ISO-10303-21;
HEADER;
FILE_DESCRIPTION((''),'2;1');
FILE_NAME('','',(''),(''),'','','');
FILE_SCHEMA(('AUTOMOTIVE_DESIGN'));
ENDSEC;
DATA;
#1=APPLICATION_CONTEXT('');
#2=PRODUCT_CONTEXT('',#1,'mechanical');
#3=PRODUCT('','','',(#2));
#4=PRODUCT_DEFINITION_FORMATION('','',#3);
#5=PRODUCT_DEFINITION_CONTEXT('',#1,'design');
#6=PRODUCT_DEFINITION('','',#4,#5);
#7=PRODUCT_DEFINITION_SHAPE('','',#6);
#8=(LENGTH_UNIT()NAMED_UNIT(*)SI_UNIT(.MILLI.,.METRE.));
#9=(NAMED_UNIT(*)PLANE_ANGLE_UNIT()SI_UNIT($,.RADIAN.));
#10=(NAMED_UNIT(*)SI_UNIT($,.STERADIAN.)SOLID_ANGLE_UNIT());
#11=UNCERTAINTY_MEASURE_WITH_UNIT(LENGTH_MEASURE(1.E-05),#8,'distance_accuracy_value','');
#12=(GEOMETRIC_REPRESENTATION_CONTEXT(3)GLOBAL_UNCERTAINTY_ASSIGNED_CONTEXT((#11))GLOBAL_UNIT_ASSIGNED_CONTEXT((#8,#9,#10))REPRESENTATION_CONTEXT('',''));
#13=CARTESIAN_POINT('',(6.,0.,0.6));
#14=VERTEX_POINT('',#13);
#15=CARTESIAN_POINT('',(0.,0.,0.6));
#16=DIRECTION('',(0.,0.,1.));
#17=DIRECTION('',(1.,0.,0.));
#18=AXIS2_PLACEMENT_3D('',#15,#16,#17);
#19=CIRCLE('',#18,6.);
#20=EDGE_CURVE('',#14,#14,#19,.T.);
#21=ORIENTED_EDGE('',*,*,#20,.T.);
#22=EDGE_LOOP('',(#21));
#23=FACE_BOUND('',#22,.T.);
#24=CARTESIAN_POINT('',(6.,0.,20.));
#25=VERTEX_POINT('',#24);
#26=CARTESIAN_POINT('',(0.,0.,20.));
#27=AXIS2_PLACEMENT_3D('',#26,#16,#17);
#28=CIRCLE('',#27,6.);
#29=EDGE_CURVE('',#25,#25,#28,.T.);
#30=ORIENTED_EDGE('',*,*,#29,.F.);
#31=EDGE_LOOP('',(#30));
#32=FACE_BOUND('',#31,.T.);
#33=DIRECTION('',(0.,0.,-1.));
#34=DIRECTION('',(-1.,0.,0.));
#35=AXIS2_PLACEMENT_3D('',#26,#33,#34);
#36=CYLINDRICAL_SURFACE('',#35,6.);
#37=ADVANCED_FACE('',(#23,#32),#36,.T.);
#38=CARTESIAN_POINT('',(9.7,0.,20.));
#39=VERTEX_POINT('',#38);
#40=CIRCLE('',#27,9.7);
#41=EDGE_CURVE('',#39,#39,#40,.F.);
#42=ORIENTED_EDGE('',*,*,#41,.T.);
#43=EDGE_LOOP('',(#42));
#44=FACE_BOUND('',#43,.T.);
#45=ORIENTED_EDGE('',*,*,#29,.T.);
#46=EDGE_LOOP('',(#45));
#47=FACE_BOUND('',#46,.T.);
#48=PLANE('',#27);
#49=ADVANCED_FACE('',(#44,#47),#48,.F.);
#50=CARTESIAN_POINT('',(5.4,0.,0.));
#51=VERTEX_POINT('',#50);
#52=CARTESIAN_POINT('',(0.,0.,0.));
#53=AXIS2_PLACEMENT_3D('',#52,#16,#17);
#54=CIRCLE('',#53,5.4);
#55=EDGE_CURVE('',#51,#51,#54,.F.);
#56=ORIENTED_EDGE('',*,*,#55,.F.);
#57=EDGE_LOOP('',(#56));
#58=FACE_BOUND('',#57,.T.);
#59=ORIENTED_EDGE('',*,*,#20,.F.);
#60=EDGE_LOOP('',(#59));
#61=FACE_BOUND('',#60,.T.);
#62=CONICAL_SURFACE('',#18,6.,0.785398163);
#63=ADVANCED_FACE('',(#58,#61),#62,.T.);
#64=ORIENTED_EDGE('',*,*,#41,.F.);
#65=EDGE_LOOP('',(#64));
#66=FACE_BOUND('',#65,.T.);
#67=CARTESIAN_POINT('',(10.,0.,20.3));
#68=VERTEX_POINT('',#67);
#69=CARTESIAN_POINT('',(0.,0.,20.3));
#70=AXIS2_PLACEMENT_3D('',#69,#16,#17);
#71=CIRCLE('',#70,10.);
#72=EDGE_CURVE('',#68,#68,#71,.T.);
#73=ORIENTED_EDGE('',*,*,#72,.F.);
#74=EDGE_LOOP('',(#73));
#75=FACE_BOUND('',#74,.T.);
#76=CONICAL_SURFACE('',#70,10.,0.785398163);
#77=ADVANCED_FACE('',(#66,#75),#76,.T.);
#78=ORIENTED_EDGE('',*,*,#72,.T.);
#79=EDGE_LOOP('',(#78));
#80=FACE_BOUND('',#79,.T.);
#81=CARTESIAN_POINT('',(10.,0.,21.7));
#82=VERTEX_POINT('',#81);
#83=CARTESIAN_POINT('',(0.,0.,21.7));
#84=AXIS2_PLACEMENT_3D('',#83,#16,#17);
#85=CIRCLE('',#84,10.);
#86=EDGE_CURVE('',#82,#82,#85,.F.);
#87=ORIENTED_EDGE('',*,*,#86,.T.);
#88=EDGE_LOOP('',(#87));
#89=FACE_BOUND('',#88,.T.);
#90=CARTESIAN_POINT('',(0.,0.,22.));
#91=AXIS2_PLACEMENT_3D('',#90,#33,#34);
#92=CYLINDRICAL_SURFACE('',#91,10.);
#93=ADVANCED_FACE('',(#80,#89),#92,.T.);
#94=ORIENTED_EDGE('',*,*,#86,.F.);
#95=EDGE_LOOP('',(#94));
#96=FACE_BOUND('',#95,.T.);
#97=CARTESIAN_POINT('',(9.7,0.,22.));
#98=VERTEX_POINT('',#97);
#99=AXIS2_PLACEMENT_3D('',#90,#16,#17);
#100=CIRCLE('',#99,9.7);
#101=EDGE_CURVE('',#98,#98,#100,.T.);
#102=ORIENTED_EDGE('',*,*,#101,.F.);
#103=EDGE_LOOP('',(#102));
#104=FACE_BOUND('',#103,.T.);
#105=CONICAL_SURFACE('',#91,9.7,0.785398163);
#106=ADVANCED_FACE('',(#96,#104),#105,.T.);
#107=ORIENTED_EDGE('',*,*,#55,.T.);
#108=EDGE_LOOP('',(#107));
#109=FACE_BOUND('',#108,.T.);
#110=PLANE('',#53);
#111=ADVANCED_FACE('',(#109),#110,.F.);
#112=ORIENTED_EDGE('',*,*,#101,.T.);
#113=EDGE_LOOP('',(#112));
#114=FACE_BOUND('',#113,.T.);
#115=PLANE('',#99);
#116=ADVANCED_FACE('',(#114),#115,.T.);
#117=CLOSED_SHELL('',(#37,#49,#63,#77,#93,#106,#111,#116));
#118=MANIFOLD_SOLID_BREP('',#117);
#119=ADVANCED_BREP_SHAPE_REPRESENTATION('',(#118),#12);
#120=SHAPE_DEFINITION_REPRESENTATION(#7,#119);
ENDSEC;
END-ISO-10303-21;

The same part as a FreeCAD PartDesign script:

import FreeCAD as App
import Part
import Sketcher


def edges_at(feature, points):
    """Names of the edges that pass closest to the given points."""
    edges = feature.Shape.Edges
    near = lambda p: min(range(len(edges)), key=lambda i: edges[i].distToShape(Part.Vertex(*p))[0])
    return sorted({f"Edge{near(p) + 1}" for p in points})

doc = App.newDocument("Part")
params = doc.addObject("Spreadsheet::Sheet", "Params")
for row, (alias, value) in enumerate([
    ("sketch1_diameter", "12 mm"),
    ("pad1_length", "20 mm"),
    ("sketch2_diameter", "20 mm"),
    ("pad2_length", "2 mm"),
    ("chamfer_size", "0.6 mm"),
    ("chamfer2_size", "0.3 mm"),
], start=1):
    params.set(f"A{row}", alias)
    params.set(f"B{row}", "=" + value)
    params.setAlias(f"B{row}", alias)

body = doc.addObject("PartDesign::Body", "Body")

# Sketch on XY plane
sketch1 = body.newObject("Sketcher::SketchObject", "Sketch")
sketch1.AttachmentSupport = (doc.getObject("XY_Plane"), [""])
sketch1.MapMode = "FlatFace"
sketch1.addGeometry(Part.Circle(App.Vector(0, 0, 0), App.Vector(0, 0, 1), 6), False)
sketch1.addConstraint([
    Sketcher.Constraint("Coincident", 0, 3, -1, 1),
    Sketcher.Constraint("Diameter", 0, 12.0),
])
sketch1.setExpression("Constraints[1]", "Params.sketch1_diameter")
pad1 = body.newObject("PartDesign::Pad", "Pad")
pad1.Profile = sketch1
pad1.setExpression("Length", "Params.pad1_length")

# Sketch on XY plane
sketch2 = body.newObject("Sketcher::SketchObject", "Sketch001")
sketch2.AttachmentSupport = (doc.getObject("XY_Plane"), [""])
sketch2.MapMode = "FlatFace"
sketch2.AttachmentOffset = App.Placement(App.Vector(0, 0, 20), App.Rotation())
sketch2.addGeometry(Part.Circle(App.Vector(0, 0, 0), App.Vector(0, 0, 1), 10), False)
sketch2.addConstraint([
    Sketcher.Constraint("Coincident", 0, 3, -1, 1),
    Sketcher.Constraint("Diameter", 0, 20.0),
])
sketch2.setExpression("Constraints[1]", "Params.sketch2_diameter")
pad2 = body.newObject("PartDesign::Pad", "Pad001")
pad2.Profile = sketch2
pad2.setExpression("Length", "Params.pad2_length")
doc.recompute()

chamfer = body.newObject("PartDesign::Chamfer", "Chamfer")
chamfer.Base = (pad2, edges_at(pad2, [(-6, 0, 0)]))
chamfer.setExpression("Size", "Params.chamfer_size")
doc.recompute()

chamfer2 = body.newObject("PartDesign::Chamfer", "Chamfer001")
chamfer2.Base = (chamfer, edges_at(chamfer, [(-10, 0, 20), (-10, 0, 22)]))
chamfer2.setExpression("Size", "Params.chamfer2_size")

doc.recompute()
